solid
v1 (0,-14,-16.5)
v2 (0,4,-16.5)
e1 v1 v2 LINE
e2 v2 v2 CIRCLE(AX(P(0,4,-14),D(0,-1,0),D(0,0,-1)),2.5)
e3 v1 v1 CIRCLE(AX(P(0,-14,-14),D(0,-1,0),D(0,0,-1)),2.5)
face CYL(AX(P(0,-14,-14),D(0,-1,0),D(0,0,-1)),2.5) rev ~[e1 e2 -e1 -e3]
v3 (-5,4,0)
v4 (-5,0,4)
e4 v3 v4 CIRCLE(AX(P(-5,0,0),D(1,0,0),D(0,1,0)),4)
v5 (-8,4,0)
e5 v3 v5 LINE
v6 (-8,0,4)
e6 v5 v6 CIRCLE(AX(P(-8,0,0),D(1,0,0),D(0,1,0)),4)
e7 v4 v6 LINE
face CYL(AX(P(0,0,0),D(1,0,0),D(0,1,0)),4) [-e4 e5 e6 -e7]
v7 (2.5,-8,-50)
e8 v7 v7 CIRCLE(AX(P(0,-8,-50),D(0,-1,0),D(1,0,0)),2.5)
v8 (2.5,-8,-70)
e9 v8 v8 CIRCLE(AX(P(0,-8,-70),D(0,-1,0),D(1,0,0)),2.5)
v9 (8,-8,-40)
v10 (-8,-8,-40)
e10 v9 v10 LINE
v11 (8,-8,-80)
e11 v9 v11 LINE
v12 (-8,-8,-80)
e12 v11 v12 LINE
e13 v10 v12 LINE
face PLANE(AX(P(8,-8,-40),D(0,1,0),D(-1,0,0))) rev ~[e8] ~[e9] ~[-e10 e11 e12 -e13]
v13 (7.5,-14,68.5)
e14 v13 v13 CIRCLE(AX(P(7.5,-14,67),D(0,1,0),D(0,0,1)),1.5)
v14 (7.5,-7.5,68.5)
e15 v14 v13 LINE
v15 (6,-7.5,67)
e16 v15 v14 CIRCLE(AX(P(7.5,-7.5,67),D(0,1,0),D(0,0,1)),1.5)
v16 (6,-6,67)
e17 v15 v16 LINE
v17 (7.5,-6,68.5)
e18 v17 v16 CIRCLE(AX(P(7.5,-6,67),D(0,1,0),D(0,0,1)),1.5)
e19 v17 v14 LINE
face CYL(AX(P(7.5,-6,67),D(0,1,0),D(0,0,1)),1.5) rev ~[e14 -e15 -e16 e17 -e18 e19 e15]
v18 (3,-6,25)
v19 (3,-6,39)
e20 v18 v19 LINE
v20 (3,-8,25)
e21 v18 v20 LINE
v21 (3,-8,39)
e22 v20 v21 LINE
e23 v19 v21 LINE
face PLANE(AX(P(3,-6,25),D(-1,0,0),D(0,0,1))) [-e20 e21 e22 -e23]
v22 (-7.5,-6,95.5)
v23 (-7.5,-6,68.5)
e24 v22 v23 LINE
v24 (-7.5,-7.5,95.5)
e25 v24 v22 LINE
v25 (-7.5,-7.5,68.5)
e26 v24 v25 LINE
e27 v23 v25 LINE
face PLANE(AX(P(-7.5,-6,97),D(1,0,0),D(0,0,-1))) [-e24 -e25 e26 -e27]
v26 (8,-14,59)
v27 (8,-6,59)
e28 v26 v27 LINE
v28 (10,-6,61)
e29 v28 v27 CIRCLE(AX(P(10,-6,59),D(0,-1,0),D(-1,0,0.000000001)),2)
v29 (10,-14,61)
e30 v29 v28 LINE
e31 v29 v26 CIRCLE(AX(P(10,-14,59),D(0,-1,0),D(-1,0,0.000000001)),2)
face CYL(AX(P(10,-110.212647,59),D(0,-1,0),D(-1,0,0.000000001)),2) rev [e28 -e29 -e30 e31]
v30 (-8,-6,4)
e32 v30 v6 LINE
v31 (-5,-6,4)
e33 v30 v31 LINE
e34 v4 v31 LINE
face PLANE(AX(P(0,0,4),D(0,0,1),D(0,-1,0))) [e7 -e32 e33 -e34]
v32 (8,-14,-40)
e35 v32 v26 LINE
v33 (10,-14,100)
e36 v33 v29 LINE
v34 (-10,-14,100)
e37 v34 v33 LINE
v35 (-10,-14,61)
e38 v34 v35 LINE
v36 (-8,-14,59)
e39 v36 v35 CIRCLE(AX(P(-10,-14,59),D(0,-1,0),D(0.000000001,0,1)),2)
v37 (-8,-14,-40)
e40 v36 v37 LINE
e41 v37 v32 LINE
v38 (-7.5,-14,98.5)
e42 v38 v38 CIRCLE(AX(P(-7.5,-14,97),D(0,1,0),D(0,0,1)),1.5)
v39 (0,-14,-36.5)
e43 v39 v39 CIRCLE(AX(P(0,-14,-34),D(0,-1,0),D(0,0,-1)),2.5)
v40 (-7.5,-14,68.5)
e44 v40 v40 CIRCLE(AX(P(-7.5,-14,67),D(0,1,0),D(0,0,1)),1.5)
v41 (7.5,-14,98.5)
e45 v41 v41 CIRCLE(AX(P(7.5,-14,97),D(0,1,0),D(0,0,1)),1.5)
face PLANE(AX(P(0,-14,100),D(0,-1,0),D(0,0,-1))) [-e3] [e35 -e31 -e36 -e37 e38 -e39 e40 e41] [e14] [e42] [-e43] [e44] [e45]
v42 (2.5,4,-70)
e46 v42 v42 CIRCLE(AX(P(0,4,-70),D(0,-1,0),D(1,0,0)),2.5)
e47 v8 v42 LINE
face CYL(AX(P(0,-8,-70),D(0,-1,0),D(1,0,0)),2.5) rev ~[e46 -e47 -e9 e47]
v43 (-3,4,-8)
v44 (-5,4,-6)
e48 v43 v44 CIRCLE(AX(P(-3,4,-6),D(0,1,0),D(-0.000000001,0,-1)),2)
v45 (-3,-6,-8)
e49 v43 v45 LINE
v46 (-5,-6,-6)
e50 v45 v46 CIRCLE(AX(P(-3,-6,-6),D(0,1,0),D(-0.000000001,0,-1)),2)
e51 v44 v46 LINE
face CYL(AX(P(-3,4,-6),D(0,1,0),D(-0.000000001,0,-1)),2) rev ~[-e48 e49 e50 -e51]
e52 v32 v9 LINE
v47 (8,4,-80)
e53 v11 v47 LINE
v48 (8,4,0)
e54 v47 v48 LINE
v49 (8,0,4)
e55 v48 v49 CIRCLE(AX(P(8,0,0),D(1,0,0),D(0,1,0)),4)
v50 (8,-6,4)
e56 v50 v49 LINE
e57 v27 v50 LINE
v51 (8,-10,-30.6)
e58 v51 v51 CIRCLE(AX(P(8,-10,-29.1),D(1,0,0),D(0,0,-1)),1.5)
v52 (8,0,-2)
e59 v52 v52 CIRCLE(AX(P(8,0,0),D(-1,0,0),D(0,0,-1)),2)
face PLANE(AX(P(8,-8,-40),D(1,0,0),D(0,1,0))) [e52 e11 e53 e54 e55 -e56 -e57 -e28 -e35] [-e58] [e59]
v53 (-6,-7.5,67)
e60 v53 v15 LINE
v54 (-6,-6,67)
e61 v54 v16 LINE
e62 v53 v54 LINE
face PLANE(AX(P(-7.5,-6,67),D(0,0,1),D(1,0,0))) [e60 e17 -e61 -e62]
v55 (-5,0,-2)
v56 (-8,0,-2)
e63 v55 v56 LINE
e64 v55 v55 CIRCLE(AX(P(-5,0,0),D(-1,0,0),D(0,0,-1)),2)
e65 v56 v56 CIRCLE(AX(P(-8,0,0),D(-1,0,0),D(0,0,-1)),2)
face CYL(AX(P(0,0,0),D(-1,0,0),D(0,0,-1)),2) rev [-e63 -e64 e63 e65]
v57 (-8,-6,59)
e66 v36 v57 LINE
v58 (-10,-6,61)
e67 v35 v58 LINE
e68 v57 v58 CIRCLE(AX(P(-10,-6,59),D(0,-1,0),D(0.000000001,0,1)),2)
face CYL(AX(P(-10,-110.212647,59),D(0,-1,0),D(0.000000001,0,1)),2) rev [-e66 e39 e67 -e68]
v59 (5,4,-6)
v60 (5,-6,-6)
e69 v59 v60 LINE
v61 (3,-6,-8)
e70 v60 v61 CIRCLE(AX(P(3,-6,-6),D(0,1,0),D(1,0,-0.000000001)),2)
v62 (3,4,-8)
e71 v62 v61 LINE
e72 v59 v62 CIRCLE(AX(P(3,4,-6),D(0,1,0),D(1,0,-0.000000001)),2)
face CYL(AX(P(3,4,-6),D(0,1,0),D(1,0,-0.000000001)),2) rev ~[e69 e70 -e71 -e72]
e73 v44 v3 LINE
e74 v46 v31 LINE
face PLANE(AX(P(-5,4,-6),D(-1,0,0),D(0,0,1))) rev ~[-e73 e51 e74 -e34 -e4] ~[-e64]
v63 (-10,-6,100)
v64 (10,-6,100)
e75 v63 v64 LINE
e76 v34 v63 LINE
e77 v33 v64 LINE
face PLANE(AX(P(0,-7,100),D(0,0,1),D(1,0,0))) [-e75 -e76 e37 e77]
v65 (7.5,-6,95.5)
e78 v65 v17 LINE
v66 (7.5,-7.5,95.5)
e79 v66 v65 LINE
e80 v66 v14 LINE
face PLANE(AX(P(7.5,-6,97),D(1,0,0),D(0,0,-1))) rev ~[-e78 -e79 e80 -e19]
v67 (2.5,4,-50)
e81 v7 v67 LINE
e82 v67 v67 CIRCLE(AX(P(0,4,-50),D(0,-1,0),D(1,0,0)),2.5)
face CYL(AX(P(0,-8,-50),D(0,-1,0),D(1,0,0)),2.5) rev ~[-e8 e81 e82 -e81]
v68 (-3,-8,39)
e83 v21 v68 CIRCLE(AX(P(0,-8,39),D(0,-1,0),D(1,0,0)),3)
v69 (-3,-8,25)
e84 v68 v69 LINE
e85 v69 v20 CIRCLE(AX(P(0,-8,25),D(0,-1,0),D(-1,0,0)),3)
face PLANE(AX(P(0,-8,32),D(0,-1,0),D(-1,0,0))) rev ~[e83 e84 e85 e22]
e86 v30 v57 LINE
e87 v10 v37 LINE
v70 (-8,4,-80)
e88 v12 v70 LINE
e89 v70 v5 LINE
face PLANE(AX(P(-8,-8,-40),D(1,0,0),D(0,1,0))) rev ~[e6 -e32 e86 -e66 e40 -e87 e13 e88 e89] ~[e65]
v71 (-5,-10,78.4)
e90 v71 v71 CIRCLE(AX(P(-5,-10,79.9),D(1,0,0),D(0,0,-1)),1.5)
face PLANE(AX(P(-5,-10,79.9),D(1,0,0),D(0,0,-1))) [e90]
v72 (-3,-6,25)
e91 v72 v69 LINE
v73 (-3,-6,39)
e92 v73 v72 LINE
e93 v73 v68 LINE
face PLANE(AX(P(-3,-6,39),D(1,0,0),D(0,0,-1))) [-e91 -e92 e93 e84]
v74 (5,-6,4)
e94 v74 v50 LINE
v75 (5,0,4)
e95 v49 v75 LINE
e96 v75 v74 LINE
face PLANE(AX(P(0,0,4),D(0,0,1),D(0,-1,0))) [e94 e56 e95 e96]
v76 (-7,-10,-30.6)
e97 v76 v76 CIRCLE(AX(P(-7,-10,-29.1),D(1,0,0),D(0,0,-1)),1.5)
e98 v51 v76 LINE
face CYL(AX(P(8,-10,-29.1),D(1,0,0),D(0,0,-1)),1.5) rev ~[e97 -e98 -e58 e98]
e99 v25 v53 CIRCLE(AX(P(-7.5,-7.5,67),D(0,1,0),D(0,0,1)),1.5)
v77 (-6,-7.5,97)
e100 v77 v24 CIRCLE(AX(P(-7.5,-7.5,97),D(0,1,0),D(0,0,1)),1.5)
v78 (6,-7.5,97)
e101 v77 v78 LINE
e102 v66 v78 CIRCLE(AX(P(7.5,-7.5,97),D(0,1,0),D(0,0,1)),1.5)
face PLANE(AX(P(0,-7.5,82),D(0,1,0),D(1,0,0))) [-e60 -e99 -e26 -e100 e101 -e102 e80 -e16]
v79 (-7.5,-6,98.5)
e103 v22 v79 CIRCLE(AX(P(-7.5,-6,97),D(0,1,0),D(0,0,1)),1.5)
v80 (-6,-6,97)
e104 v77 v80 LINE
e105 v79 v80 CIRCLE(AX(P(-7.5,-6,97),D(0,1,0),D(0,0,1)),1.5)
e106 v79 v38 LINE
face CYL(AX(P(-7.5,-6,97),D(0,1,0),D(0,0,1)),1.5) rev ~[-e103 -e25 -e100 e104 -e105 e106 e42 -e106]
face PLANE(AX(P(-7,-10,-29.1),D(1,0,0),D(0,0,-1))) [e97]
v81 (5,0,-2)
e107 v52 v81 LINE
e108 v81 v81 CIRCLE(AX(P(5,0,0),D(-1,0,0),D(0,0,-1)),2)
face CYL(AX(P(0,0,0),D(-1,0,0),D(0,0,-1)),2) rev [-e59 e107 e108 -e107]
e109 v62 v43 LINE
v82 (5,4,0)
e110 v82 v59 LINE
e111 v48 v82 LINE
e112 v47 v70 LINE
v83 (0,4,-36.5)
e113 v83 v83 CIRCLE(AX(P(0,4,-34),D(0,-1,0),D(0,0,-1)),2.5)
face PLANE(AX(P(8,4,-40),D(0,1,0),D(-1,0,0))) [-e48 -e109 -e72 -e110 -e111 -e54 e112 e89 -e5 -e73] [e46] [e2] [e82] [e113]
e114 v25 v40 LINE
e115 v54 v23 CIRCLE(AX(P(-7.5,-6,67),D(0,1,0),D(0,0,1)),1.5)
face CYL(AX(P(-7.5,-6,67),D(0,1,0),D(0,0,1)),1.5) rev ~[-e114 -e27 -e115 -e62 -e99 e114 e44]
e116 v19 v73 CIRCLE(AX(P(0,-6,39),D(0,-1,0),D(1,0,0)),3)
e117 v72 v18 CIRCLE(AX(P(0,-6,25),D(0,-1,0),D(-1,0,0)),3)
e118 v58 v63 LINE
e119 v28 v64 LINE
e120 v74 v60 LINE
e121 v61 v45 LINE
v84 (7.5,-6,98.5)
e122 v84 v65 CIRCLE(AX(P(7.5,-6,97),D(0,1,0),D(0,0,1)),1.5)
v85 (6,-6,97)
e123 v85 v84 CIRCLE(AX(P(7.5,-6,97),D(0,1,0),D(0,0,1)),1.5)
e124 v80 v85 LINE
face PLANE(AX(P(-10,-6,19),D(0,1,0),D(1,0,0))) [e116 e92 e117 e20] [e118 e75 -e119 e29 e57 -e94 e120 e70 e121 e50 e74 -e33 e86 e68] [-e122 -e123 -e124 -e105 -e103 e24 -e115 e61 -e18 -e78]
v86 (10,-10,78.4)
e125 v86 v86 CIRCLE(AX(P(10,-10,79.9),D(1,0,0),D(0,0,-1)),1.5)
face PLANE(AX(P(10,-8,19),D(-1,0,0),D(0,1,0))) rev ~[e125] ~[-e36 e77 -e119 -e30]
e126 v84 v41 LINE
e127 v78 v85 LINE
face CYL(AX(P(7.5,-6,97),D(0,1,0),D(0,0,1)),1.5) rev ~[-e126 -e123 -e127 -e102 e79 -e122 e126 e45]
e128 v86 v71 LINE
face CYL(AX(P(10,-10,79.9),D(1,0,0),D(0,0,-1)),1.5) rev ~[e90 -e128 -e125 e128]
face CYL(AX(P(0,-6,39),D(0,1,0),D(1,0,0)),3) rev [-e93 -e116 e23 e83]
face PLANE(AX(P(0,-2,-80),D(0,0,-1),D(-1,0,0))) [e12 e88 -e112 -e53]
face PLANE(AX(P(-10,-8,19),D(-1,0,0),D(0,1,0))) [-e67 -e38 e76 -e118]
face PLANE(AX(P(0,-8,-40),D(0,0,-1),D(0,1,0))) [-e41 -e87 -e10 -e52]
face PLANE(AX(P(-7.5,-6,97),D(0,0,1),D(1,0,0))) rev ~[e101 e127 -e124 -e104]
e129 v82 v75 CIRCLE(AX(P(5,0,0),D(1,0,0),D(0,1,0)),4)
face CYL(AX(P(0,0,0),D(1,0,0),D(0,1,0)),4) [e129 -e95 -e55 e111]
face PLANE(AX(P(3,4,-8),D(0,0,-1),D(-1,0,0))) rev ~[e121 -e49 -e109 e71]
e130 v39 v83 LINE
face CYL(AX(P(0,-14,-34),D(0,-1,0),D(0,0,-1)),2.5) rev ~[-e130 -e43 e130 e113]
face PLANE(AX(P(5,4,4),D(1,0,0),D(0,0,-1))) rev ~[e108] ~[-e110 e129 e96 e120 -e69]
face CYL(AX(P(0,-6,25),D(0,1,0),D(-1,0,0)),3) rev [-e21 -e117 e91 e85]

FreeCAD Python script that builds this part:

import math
import FreeCAD as App
import Part
import Sketcher


def add_polygon(sketch, points):
    """Adds a closed chain of lines whose ends are joined by coincident constraints."""
    first, n = sketch.GeometryCount, len(points)
    for a, b in zip(points, points[1:] + points[:1]):
        sketch.addGeometry(Part.LineSegment(App.Vector(*a, 0), App.Vector(*b, 0)), False)
    for i in range(n):
        sketch.addConstraint(Sketcher.Constraint("Coincident", first + i, 2, first + (i + 1) % n, 1))

doc = App.newDocument("Part")
body = doc.addObject("PartDesign::Body", "Body")

# Sketch on YZ plane
sketch1 = doc.addObject("Sketcher::SketchObject", "Sketch")
body.addObject(sketch1)
sketch1.AttachmentSupport = (doc.YZ_Plane, [""])
sketch1.MapMode = "FlatFace"
add_polygon(sketch1, [(-8, 100), (-14, 100), (-14, -40), (-8, -40)])  # lines 0-3
sketch1.addConstraint(Sketcher.Constraint("Horizontal", 0))
sketch1.addConstraint(Sketcher.Constraint("Vertical", 1))
sketch1.addConstraint(Sketcher.Constraint("Horizontal", 2))
sketch1.addConstraint(Sketcher.Constraint("Vertical", 3))
sketch1.addConstraint(Sketcher.Constraint("DistanceX", 0, 2, 0, 1, 6.0))
sketch1.addConstraint(Sketcher.Constraint("DistanceY", 1, 2, 1, 1, 140.0))
sketch1.addConstraint(Sketcher.Constraint("DistanceX", 0, 2, -1, 1, 14.0))
sketch1.addConstraint(Sketcher.Constraint("DistanceY", -1, 1, 0, 2, 100.0))
pad1 = doc.addObject("PartDesign::Pad", "Pad")
body.addObject(pad1)
pad1.Profile = sketch1
pad1.Length = 20
pad1.Midplane = True

# Sketch on YZ plane
sketch2 = doc.addObject("Sketcher::SketchObject", "Sketch001")
body.addObject(sketch2)
sketch2.AttachmentSupport = (doc.YZ_Plane, [""])
sketch2.MapMode = "FlatFace"
sketch2.addGeometry(Part.LineSegment(App.Vector(-8, 4, 0), App.Vector(-8, -40, 0)), False)
sketch2.addGeometry(Part.LineSegment(App.Vector(-8, -40, 0), App.Vector(4, -40, 0)), False)
sketch2.addGeometry(Part.LineSegment(App.Vector(4, -40, 0), App.Vector(4, 0, 0)), False)
sketch2.addGeometry(Part.ArcOfCircle(Part.Circle(App.Vector(0, 0, 0), App.Vector(0, 0, 1), 4), math.radians(0), math.radians(90)), False)
sketch2.addGeometry(Part.LineSegment(App.Vector(0, 4, 0), App.Vector(-8, 4, 0)), False)
sketch2.addGeometry(Part.Circle(App.Vector(0, 0, 0), App.Vector(0, 0, 1), 2), False)
sketch2.addConstraint(Sketcher.Constraint("Coincident", 0, 2, 1, 1))
sketch2.addConstraint(Sketcher.Constraint("Coincident", 1, 2, 2, 1))
sketch2.addConstraint(Sketcher.Constraint("Tangent", 2, 2, 3, 1))
sketch2.addConstraint(Sketcher.Constraint("Tangent", 3, 2, 4, 1))
sketch2.addConstraint(Sketcher.Constraint("Coincident", 4, 2, 0, 1))
sketch2.addConstraint(Sketcher.Constraint("Vertical", 0))
sketch2.addConstraint(Sketcher.Constraint("Horizontal", 1))
sketch2.addConstraint(Sketcher.Constraint("Vertical", 2))
sketch2.addConstraint(Sketcher.Constraint("Horizontal", 4))
sketch2.addConstraint(Sketcher.Constraint("Coincident", 3, 3, -1, 1))
sketch2.addConstraint(Sketcher.Constraint("Coincident", 5, 3, -1, 1))
sketch2.addConstraint(Sketcher.Constraint("Diameter", 5, 4.0))
sketch2.addConstraint(Sketcher.Constraint("Radius", 3, 4.0))
sketch2.addConstraint(Sketcher.Constraint("DistanceX", 1, 1, 1, 2, 12.0))
sketch2.addConstraint(Sketcher.Constraint("DistanceY", 0, 2, 0, 1, 44.0))
pad2 = doc.addObject("PartDesign::Pad", "Pad001")
body.addObject(pad2)
pad2.Profile = sketch2
pad2.Length = 20
pad2.Midplane = True

# Sketch on XY plane
sketch3 = doc.addObject("Sketcher::SketchObject", "Sketch002")
body.addObject(sketch3)
sketch3.AttachmentSupport = (doc.XY_Plane, [""])
sketch3.MapMode = "FlatFace"
sketch3.AttachmentOffset = App.Placement(App.Vector(0, 0, 4), App.Rotation())
add_polygon(sketch3, [(-10, 4), (-10, -8), (-8, -8), (-8, 4)])  # lines 0-3
add_polygon(sketch3, [(8, 4), (8, -8), (10, -8), (10, 4)])  # lines 4-7
sketch3.addConstraint(Sketcher.Constraint("Vertical", 0))
sketch3.addConstraint(Sketcher.Constraint("Horizontal", 1))
sketch3.addConstraint(Sketcher.Constraint("Vertical", 2))
sketch3.addConstraint(Sketcher.Constraint("Horizontal", 3))
sketch3.addConstraint(Sketcher.Constraint("Vertical", 4))
sketch3.addConstraint(Sketcher.Constraint("Horizontal", 5))
sketch3.addConstraint(Sketcher.Constraint("Vertical", 6))
sketch3.addConstraint(Sketcher.Constraint("Horizontal", 7))
sketch3.addConstraint(Sketcher.Constraint("Symmetric", 1, 2, 4, 2, -2))
sketch3.addConstraint(Sketcher.Constraint("Symmetric", 3, 2, 6, 2, -2))
sketch3.addConstraint(Sketcher.Constraint("DistanceX", 1, 1, 1, 2, 2.0))
sketch3.addConstraint(Sketcher.Constraint("DistanceY", 0, 2, 0, 1, 12.0))
sketch3.addConstraint(Sketcher.Constraint("DistanceX", 0, 2, -1, 1, 10.0))
sketch3.addConstraint(Sketcher.Constraint("DistanceY", 0, 2, -1, 1, 8.0))
pocket1 = doc.addObject("PartDesign::Pocket", "Pocket")
body.addObject(pocket1)
pocket1.Profile = sketch3
pocket1.Type = "ThroughAll"

# Sketch on XZ plane
sketch4 = doc.addObject("Sketcher::SketchObject", "Sketch003")
body.addObject(sketch4)
sketch4.AttachmentSupport = (doc.XZ_Plane, [""])
sketch4.MapMode = "FlatFace"
sketch4.AttachmentOffset = App.Placement(App.Vector(0, 0, -4), App.Rotation())
sketch4.addGeometry(Part.LineSegment(App.Vector(-5, 4, 0), App.Vector(5, 4, 0)), False)
sketch4.addGeometry(Part.LineSegment(App.Vector(5, 4, 0), App.Vector(5, -6, 0)), False)
sketch4.addGeometry(Part.ArcOfCircle(Part.Circle(App.Vector(3, -6, 0), App.Vector(0, 0, 1), 2), math.radians(-90), math.radians(0)), False)
sketch4.addGeometry(Part.LineSegment(App.Vector(3, -8, 0), App.Vector(-3, -8, 0)), False)
sketch4.addGeometry(Part.ArcOfCircle(Part.Circle(App.Vector(-3, -6, 0), App.Vector(0, 0, 1), 2), math.radians(-180), math.radians(-90)), False)
sketch4.addGeometry(Part.LineSegment(App.Vector(-5, -6, 0), App.Vector(-5, 4, 0)), False)
sketch4.addConstraint(Sketcher.Constraint("Coincident", 0, 2, 1, 1))
sketch4.addConstraint(Sketcher.Constraint("Tangent", 1, 2, 2, 2))
sketch4.addConstraint(Sketcher.Constraint("Tangent", 2, 1, 3, 1))
sketch4.addConstraint(Sketcher.Constraint("Tangent", 3, 2, 4, 2))
sketch4.addConstraint(Sketcher.Constraint("Tangent", 4, 1, 5, 1))
sketch4.addConstraint(Sketcher.Constraint("Coincident", 5, 2, 0, 1))
sketch4.addConstraint(Sketcher.Constraint("Horizontal", 0))
sketch4.addConstraint(Sketcher.Constraint("Vertical", 1))
sketch4.addConstraint(Sketcher.Constraint("Horizontal", 3))
sketch4.addConstraint(Sketcher.Constraint("Vertical", 5))
sketch4.addConstraint(Sketcher.Constraint("Equal", 2, 4))
sketch4.addConstraint(Sketcher.Constraint("Equal", 0, 1))
sketch4.addConstraint(Sketcher.Constraint("Radius", 2, 2.0))
sketch4.addConstraint(Sketcher.Constraint("DistanceX", 0, 1, 0, 2, 10.0))
sketch4.addConstraint(Sketcher.Constraint("DistanceX", -1, 1, 2, 3, 3.0))
sketch4.addConstraint(Sketcher.Constraint("DistanceY", 2, 3, -1, 1, 6.0))
pocket2 = doc.addObject("PartDesign::Pocket", "Pocket001")
body.addObject(pocket2)
pocket2.Profile = sketch4
pocket2.Length = 10
pocket2.Reversed = True

# Sketch on XY plane
sketch5 = doc.addObject("Sketcher::SketchObject", "Sketch004")
body.addObject(sketch5)
sketch5.AttachmentSupport = (doc.XY_Plane, [""])
sketch5.MapMode = "FlatFace"
sketch5.AttachmentOffset = App.Placement(App.Vector(0, 0, 4), App.Rotation())
add_polygon(sketch5, [(-8, -6), (-8, -8), (8, -8), (8, -6)])  # lines 0-3
sketch5.addConstraint(Sketcher.Constraint("Vertical", 0))
sketch5.addConstraint(Sketcher.Constraint("Horizontal", 1))
sketch5.addConstraint(Sketcher.Constraint("Vertical", 2))
sketch5.addConstraint(Sketcher.Constraint("Horizontal", 3))
sketch5.addConstraint(Sketcher.Constraint("DistanceX", 1, 1, 1, 2, 16.0))
sketch5.addConstraint(Sketcher.Constraint("DistanceY", 0, 2, 0, 1, 2.0))
sketch5.addConstraint(Sketcher.Constraint("DistanceX", 0, 2, -1, 1, 8.0))
sketch5.addConstraint(Sketcher.Constraint("DistanceY", 0, 2, -1, 1, 8.0))
pad3 = doc.addObject("PartDesign::Pad", "Pad002")
body.addObject(pad3)
pad3.Profile = sketch5
pad3.Length = 15

# Sketch on XY plane
sketch6 = doc.addObject("Sketcher::SketchObject", "Sketch005")
body.addObject(sketch6)
sketch6.AttachmentSupport = (doc.XY_Plane, [""])
sketch6.MapMode = "FlatFace"
sketch6.AttachmentOffset = App.Placement(App.Vector(0, 0, 19), App.Rotation())
add_polygon(sketch6, [(-10, -6), (-10, -8), (10, -8), (10, -6)])  # lines 0-3
sketch6.addConstraint(Sketcher.Constraint("Vertical", 0))
sketch6.addConstraint(Sketcher.Constraint("Horizontal", 1))
sketch6.addConstraint(Sketcher.Constraint("Vertical", 2))
sketch6.addConstraint(Sketcher.Constraint("Horizontal", 3))
sketch6.addConstraint(Sketcher.Constraint("DistanceX", 1, 1, 1, 2, 20.0))
sketch6.addConstraint(Sketcher.Constraint("DistanceY", 0, 2, 0, 1, 2.0))
sketch6.addConstraint(Sketcher.Constraint("DistanceX", 0, 2, -1, 1, 10.0))
sketch6.addConstraint(Sketcher.Constraint("DistanceY", 0, 2, -1, 1, 8.0))
pad4 = doc.addObject("PartDesign::Pad", "Pad003")
body.addObject(pad4)
pad4.Profile = sketch6
pad4.Length = 81

# Sketch on XZ plane
sketch7 = doc.addObject("Sketcher::SketchObject", "Sketch006")
body.addObject(sketch7)
sketch7.AttachmentSupport = (doc.XZ_Plane, [""])
sketch7.MapMode = "FlatFace"
sketch7.AttachmentOffset = App.Placement(App.Vector(0, 0, 8), App.Rotation())
sketch7.addGeometry(Part.ArcOfCircle(Part.Circle(App.Vector(-10, 59, 0), App.Vector(0, 0, 1), 2), math.radians(0), math.radians(90)), False)
sketch7.addGeometry(Part.LineSegment(App.Vector(-8, 59, 0), App.Vector(-8, -40, 0)), False)
sketch7.addGeometry(Part.LineSegment(App.Vector(-8, -40, 0), App.Vector(-10, -40, 0)), False)
sketch7.addGeometry(Part.LineSegment(App.Vector(-10, -40, 0), App.Vector(-10, 61, 0)), False)
sketch7.addGeometry(Part.LineSegment(App.Vector(10, -40, 0), App.Vector(8, -40, 0)), False)
sketch7.addGeometry(Part.LineSegment(App.Vector(8, -40, 0), App.Vector(8, 59, 0)), False)
sketch7.addGeometry(Part.ArcOfCircle(Part.Circle(App.Vector(10, 59, 0), App.Vector(0, 0, 1), 2), math.radians(90), math.radians(180)), False)
sketch7.addGeometry(Part.LineSegment(App.Vector(10, 61, 0), App.Vector(10, -40, 0)), False)
sketch7.addConstraint(Sketcher.Constraint("Tangent", 0, 1, 1, 1))
sketch7.addConstraint(Sketcher.Constraint("Coincident", 1, 2, 2, 1))
sketch7.addConstraint(Sketcher.Constraint("Coincident", 2, 2, 3, 1))
sketch7.addConstraint(Sketcher.Constraint("Coincident", 3, 2, 0, 2))
sketch7.addConstraint(Sketcher.Constraint("Coincident", 4, 2, 5, 1))
sketch7.addConstraint(Sketcher.Constraint("Tangent", 5, 2, 6, 2))
sketch7.addConstraint(Sketcher.Constraint("Coincident", 6, 1, 7, 1))
sketch7.addConstraint(Sketcher.Constraint("Coincident", 7, 2, 4, 1))
sketch7.addConstraint(Sketcher.Constraint("Vertical", 1))
sketch7.addConstraint(Sketcher.Constraint("Horizontal", 2))
sketch7.addConstraint(Sketcher.Constraint("Vertical", 3))
sketch7.addConstraint(Sketcher.Constraint("Horizontal", 4))
sketch7.addConstraint(Sketcher.Constraint("Vertical", 5))
sketch7.addConstraint(Sketcher.Constraint("Vertical", 7))
sketch7.addConstraint(Sketcher.Constraint("Equal", 0, 6))
sketch7.addConstraint(Sketcher.Constraint("Symmetric", 0, 3, 6, 3, -2))
sketch7.addConstraint(Sketcher.Constraint("Symmetric", 2, 2, 7, 2, -2))
sketch7.addConstraint(Sketcher.Constraint("Vertical", 0, 3, 2, 2))
sketch7.addConstraint(Sketcher.Constraint("Radius", 0, 2.0))
sketch7.addConstraint(Sketcher.Constraint("DistanceY", 1, 2, 1, 1, 99.0))
sketch7.addConstraint(Sketcher.Constraint("DistanceX", 0, 3, -1, 1, 10.0))
sketch7.addConstraint(Sketcher.Constraint("DistanceY", -1, 1, 0, 3, 59.0))
pocket3 = doc.addObject("PartDesign::Pocket", "Pocket002")
body.addObject(pocket3)
pocket3.Profile = sketch7
pocket3.Type = "ThroughAll"
pocket3.Midplane = True

# Sketch on XY plane
sketch8 = doc.addObject("Sketcher::SketchObject", "Sketch007")
body.addObject(sketch8)
sketch8.AttachmentSupport = (doc.XY_Plane, [""])
sketch8.MapMode = "FlatFace"
sketch8.AttachmentOffset = App.Placement(App.Vector(0, 0, -40), App.Rotation())
add_polygon(sketch8, [(8, 4), (8, -8), (-8, -8), (-8, 4)])  # lines 0-3
sketch8.addConstraint(Sketcher.Constraint("Vertical", 0))
sketch8.addConstraint(Sketcher.Constraint("Horizontal", 1))
sketch8.addConstraint(Sketcher.Constraint("Vertical", 2))
sketch8.addConstraint(Sketcher.Constraint("Horizontal", 3))
sketch8.addConstraint(Sketcher.Constraint("DistanceX", 1, 2, 1, 1, 16.0))
sketch8.addConstraint(Sketcher.Constraint("DistanceY", 0, 2, 0, 1, 12.0))
sketch8.addConstraint(Sketcher.Constraint("DistanceX", -1, 1, 0, 2, 8.0))
sketch8.addConstraint(Sketcher.Constraint("DistanceY", 0, 2, -1, 1, 8.0))
pad5 = doc.addObject("PartDesign::Pad", "Pad004")
body.addObject(pad5)
pad5.Profile = sketch8
pad5.Length = 40
pad5.Reversed = True

# Sketch on XZ plane
sketch9 = doc.addObject("Sketcher::SketchObject", "Sketch008")
body.addObject(sketch9)
sketch9.AttachmentSupport = (doc.XZ_Plane, [""])
sketch9.MapMode = "FlatFace"
sketch9.AttachmentOffset = App.Placement(App.Vector(0, 0, 6), App.Rotation())
sketch9.addGeometry(Part.Circle(App.Vector(7.5, 97, 0), App.Vector(0, 0, 1), 1.5), False)
sketch9.addGeometry(Part.Circle(App.Vector(7.5, 67, 0), App.Vector(0, 0, 1), 1.5), False)
sketch9.addGeometry(Part.Circle(App.Vector(-7.5, 67, 0), App.Vector(0, 0, 1), 1.5), False)
sketch9.addGeometry(Part.Circle(App.Vector(-7.5, 97, 0), App.Vector(0, 0, 1), 1.5), False)
sketch9.addConstraint(Sketcher.Constraint("Equal", 0, 1))
sketch9.addConstraint(Sketcher.Constraint("Equal", 1, 2))
sketch9.addConstraint(Sketcher.Constraint("Equal", 2, 3))
sketch9.addConstraint(Sketcher.Constraint("Symmetric", 1, 3, 2, 3, -2))
sketch9.addConstraint(Sketcher.Constraint("Symmetric", 0, 3, 3, 3, -2))
sketch9.addConstraint(Sketcher.Constraint("Vertical", 0, 3, 1, 3))
sketch9.addConstraint(Sketcher.Constraint("Diameter", 0, 3.0))
sketch9.addConstraint(Sketcher.Constraint("DistanceY", -1, 1, 0, 3, 97.0))
sketch9.addConstraint(Sketcher.Constraint("DistanceY", -1, 1, 1, 3, 67.0))
sketch9.addConstraint(Sketcher.Constraint("DistanceX", 2, 3, 1, 3, 15.0))
pocket4 = doc.addObject("PartDesign::Pocket", "Pocket003")
body.addObject(pocket4)
pocket4.Profile = sketch9
pocket4.Type = "ThroughAll"
pocket4.Reversed = True

# Sketch on XZ plane
sketch10 = doc.addObject("Sketcher::SketchObject", "Sketch009")
body.addObject(sketch10)
sketch10.AttachmentSupport = (doc.XZ_Plane, [""])
sketch10.MapMode = "FlatFace"
sketch10.AttachmentOffset = App.Placement(App.Vector(0, 0, 6), App.Rotation())
add_polygon(sketch10, [(-8, 67), (-8, 97), (8, 97), (8, 67)])  # lines 0-3
sketch10.addConstraint(Sketcher.Constraint("Vertical", 0))
sketch10.addConstraint(Sketcher.Constraint("Horizontal", 1))
sketch10.addConstraint(Sketcher.Constraint("Vertical", 2))
sketch10.addConstraint(Sketcher.Constraint("Horizontal", 3))
sketch10.addConstraint(Sketcher.Constraint("DistanceX", 1, 1, 1, 2, 15.0))
sketch10.addConstraint(Sketcher.Constraint("DistanceY", 0, 1, 0, 2, 30.0))
sketch10.addConstraint(Sketcher.Constraint("DistanceY", -1, 1, 0, 2, 97.0))
sketch10.addConstraint(Sketcher.Constraint("DistanceX", 0, 2, -1, 1, 7.5))
pocket5 = doc.addObject("PartDesign::Pocket", "Pocket004")
body.addObject(pocket5)
pocket5.Profile = sketch10
pocket5.Length = 1.5
pocket5.Reversed = True

# Sketch on XZ plane
sketch11 = doc.addObject("Sketcher::SketchObject", "Sketch010")
body.addObject(sketch11)
sketch11.AttachmentSupport = (doc.XZ_Plane, [""])
sketch11.MapMode = "FlatFace"
sketch11.AttachmentOffset = App.Placement(App.Vector(0, 0, 6), App.Rotation())
sketch11.addGeometry(Part.LineSegment(App.Vector(3, 39, 0), App.Vector(3, 25, 0)), False)
sketch11.addGeometry(Part.ArcOfCircle(Part.Circle(App.Vector(0, 25, 0), App.Vector(0, 0, 1), 3), math.radians(180), math.radians(360)), False)
sketch11.addGeometry(Part.LineSegment(App.Vector(-3, 25, 0), App.Vector(-3, 39, 0)), False)
sketch11.addGeometry(Part.ArcOfCircle(Part.Circle(App.Vector(0, 39, 0), App.Vector(0, 0, 1), 3), math.radians(0), math.radians(180)), False)
sketch11.addConstraint(Sketcher.Constraint("Tangent", 0, 2, 1, 2))
sketch11.addConstraint(Sketcher.Constraint("Tangent", 1, 1, 2, 1))
sketch11.addConstraint(Sketcher.Constraint("Tangent", 2, 2, 3, 2))
sketch11.addConstraint(Sketcher.Constraint("Tangent", 3, 1, 0, 1))
sketch11.addConstraint(Sketcher.Constraint("Vertical", 0))
sketch11.addConstraint(Sketcher.Constraint("Vertical", 2))
sketch11.addConstraint(Sketcher.Constraint("PointOnObject", 1, 3, -2))
sketch11.addConstraint(Sketcher.Constraint("Radius", 1, 3.0))
sketch11.addConstraint(Sketcher.Constraint("DistanceY", 0, 2, 0, 1, 14.0))
sketch11.addConstraint(Sketcher.Constraint("DistanceY", -1, 1, 1, 3, 25.0))
pocket6 = doc.addObject("PartDesign::Pocket", "Pocket005")
body.addObject(pocket6)
pocket6.Profile = sketch11
pocket6.Length = 2
pocket6.Reversed = True

# Sketch on XZ plane
sketch12 = doc.addObject("Sketcher::SketchObject", "Sketch011")
body.addObject(sketch12)
sketch12.AttachmentSupport = (doc.XZ_Plane, [""])
sketch12.MapMode = "FlatFace"
sketch12.AttachmentOffset = App.Placement(App.Vector(0, 0, 14), App.Rotation())
sketch12.addGeometry(Part.Circle(App.Vector(0, -34, 0), App.Vector(0, 0, 1), 2.5), False)
sketch12.addGeometry(Part.Circle(App.Vector(0, -14, 0), App.Vector(0, 0, 1), 2.5), False)
sketch12.addConstraint(Sketcher.Constraint("Equal", 0, 1))
sketch12.addConstraint(Sketcher.Constraint("PointOnObject", 0, 3, -2))
sketch12.addConstraint(Sketcher.Constraint("PointOnObject", 1, 3, -2))
sketch12.addConstraint(Sketcher.Constraint("Diameter", 0, 5.0))
sketch12.addConstraint(Sketcher.Constraint("DistanceY", 0, 3, -1, 1, 34.0))
sketch12.addConstraint(Sketcher.Constraint("DistanceY", 1, 3, -1, 1, 14.0))
pocket7 = doc.addObject("PartDesign::Pocket", "Pocket006")
body.addObject(pocket7)
pocket7.Profile = sketch12
pocket7.Type = "ThroughAll"

# Sketch on XZ plane
sketch13 = doc.addObject("Sketcher::SketchObject", "Sketch012")
body.addObject(sketch13)
sketch13.AttachmentSupport = (doc.XZ_Plane, [""])
sketch13.MapMode = "FlatFace"
sketch13.AttachmentOffset = App.Placement(App.Vector(0, 0, 8), App.Rotation())
sketch13.addGeometry(Part.Circle(App.Vector(0, -70, 0), App.Vector(0, 0, 1), 2.5), False)
sketch13.addGeometry(Part.Circle(App.Vector(0, -50, 0), App.Vector(0, 0, 1), 2.5), False)
sketch13.addConstraint(Sketcher.Constraint("Equal", 0, 1))
sketch13.addConstraint(Sketcher.Constraint("PointOnObject", 0, 3, -2))
sketch13.addConstraint(Sketcher.Constraint("PointOnObject", 1, 3, -2))
sketch13.addConstraint(Sketcher.Constraint("Diameter", 0, 5.0))
sketch13.addConstraint(Sketcher.Constraint("DistanceY", 0, 3, -1, 1, 70.0))
sketch13.addConstraint(Sketcher.Constraint("DistanceY", 1, 3, -1, 1, 50.0))
pocket8 = doc.addObject("PartDesign::Pocket", "Pocket007")
body.addObject(pocket8)
pocket8.Profile = sketch13
pocket8.Type = "ThroughAll"

# Sketch on YZ plane
sketch14 = doc.addObject("Sketcher::SketchObject", "Sketch013")
body.addObject(sketch14)
sketch14.AttachmentSupport = (doc.YZ_Plane, [""])
sketch14.MapMode = "FlatFace"
sketch14.AttachmentOffset = App.Placement(App.Vector(0, 0, 8), App.Rotation())
sketch14.addGeometry(Part.Circle(App.Vector(-10, -29.1, 0), App.Vector(0, 0, 1), 1.5), False)
sketch14.addConstraint(Sketcher.Constraint("Diameter", 0, 3.0))
sketch14.addConstraint(Sketcher.Constraint("DistanceX", 0, 3, -1, 1, 10.0))
sketch14.addConstraint(Sketcher.Constraint("DistanceY", 0, 3, -1, 1, 29.1))
pocket9 = doc.addObject("PartDesign::Pocket", "Pocket008")
body.addObject(pocket9)
pocket9.Profile = sketch14
pocket9.Length = 15

# Sketch on YZ plane
sketch15 = doc.addObject("Sketcher::SketchObject", "Sketch014")
body.addObject(sketch15)
sketch15.AttachmentSupport = (doc.YZ_Plane, [""])
sketch15.MapMode = "FlatFace"
sketch15.AttachmentOffset = App.Placement(App.Vector(0, 0, 10), App.Rotation())
sketch15.addGeometry(Part.Circle(App.Vector(-10, 79.9, 0), App.Vector(0, 0, 1), 1.5), False)
sketch15.addConstraint(Sketcher.Constraint("Diameter", 0, 3.0))
sketch15.addConstraint(Sketcher.Constraint("DistanceX", 0, 3, -1, 1, 10.0))
sketch15.addConstraint(Sketcher.Constraint("DistanceY", -1, 1, 0, 3, 79.9))
pocket10 = doc.addObject("PartDesign::Pocket", "Pocket009")
body.addObject(pocket10)
pocket10.Profile = sketch15
pocket10.Length = 15

doc.recompute()
